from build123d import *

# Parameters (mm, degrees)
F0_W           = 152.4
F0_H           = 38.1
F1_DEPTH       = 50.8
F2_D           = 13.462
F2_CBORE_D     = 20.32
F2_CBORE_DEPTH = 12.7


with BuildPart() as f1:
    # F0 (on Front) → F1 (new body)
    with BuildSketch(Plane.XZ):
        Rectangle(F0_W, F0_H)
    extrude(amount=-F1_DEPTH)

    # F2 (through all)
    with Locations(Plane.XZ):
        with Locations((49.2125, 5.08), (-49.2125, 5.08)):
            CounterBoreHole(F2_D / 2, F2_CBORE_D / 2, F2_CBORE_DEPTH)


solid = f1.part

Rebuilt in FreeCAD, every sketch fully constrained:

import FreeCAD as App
import Part
import Sketcher
Q = App.Units.Quantity


def add_polygon(sketch, points):
    """Adds a closed chain of lines whose ends are joined by coincident constraints."""
    first, n = sketch.GeometryCount, len(points)
    for a, b in zip(points, points[1:] + points[:1]):
        sketch.addGeometry(Part.LineSegment(App.Vector(*a, 0), App.Vector(*b, 0)), False)
    for i in range(n):
        sketch.addConstraint(Sketcher.Constraint("Coincident", first + i, 2, first + (i + 1) % n, 1))

doc = App.newDocument("Part")
params = doc.addObject("Spreadsheet::Sheet", "Params")
for row, (alias, value) in enumerate([
    ("sketch1_width", "6 in"),
    ("sketch1_height", "1.5 in"),
    ("pad1_length", "2 in"),
    ("sketch2_diameter", "0.53 in"),
    ("hole_diameter", "0.53 in"),
    ("hole_cbore_diameter", "0.8 in"),
    ("hole_cbore_depth", "0.5 in"),
], start=1):
    params.set(f"A{row}", alias)
    params.set(f"B{row}", "=" + value)
    params.setAlias(f"B{row}", alias)

body = doc.addObject("PartDesign::Body", "Body")

sketch1 = body.newObject("Sketcher::SketchObject", "Sketch")
sketch1.AttachmentSupport = (doc.getObject("XZ_Plane"), [""])
sketch1.MapMode = "FlatFace"
add_polygon(sketch1, [(-76, 19), (-76, -19), (76, -19), (76, 19)])
sketch1.addConstraint([
    Sketcher.Constraint("Vertical", 0),
    Sketcher.Constraint("Horizontal", 1),
    Sketcher.Constraint("Vertical", 2),
    Sketcher.Constraint("Horizontal", 3),
    Sketcher.Constraint("Symmetric", 0, 2, 2, 2, -1, 1),
    Sketcher.Constraint("DistanceX", 1, 1, 1, 2, Q("6 in")),
    Sketcher.Constraint("DistanceY", 0, 2, 0, 1, Q("1.5 in")),
])
sketch1.setExpression("Constraints[9]", "Params.sketch1_width")
sketch1.setExpression("Constraints[10]", "Params.sketch1_height")
pad1 = body.newObject("PartDesign::Pad", "Pad")
pad1.Profile = sketch1
pad1.setExpression("Length", "Params.pad1_length")
pad1.Reversed = True

sketch2 = body.newObject("Sketcher::SketchObject", "Sketch001")
sketch2.AttachmentSupport = (doc.getObject("XZ_Plane"), [""])
sketch2.MapMode = "FlatFace"
sketch2.addGeometry([
    Part.Circle(App.Vector(49, 5, 0), App.Vector(0, 0, 1), 7),
    Part.Circle(App.Vector(-49, 5, 0), App.Vector(0, 0, 1), 7),
], False)
sketch2.addConstraint([
    Sketcher.Constraint("Equal", 0, 1),
    Sketcher.Constraint("Symmetric", 0, 3, 1, 3, -2),
    Sketcher.Constraint("Diameter", 0, Q("0.53 in")),
    Sketcher.Constraint("DistanceY", -1, 1, 0, 3, Q("0.2 in")),
    Sketcher.Constraint("DistanceX", -1, 1, 0, 3, Q("1.9375 in")),
])
sketch2.setExpression("Constraints[2]", "Params.sketch2_diameter")
doc.recompute()
hole = body.newObject("PartDesign::Hole", "Hole")
hole.Profile = sketch2
hole.ThreadType = "None"
hole.setExpression("Diameter", "Params.hole_diameter")
hole.DepthType = "ThroughAll"
hole.HoleCutType = "Counterbore"
hole.setExpression("HoleCutDiameter", "Params.hole_cbore_diameter")
hole.setExpression("HoleCutDepth", "Params.hole_cbore_depth")

doc.recompute()
